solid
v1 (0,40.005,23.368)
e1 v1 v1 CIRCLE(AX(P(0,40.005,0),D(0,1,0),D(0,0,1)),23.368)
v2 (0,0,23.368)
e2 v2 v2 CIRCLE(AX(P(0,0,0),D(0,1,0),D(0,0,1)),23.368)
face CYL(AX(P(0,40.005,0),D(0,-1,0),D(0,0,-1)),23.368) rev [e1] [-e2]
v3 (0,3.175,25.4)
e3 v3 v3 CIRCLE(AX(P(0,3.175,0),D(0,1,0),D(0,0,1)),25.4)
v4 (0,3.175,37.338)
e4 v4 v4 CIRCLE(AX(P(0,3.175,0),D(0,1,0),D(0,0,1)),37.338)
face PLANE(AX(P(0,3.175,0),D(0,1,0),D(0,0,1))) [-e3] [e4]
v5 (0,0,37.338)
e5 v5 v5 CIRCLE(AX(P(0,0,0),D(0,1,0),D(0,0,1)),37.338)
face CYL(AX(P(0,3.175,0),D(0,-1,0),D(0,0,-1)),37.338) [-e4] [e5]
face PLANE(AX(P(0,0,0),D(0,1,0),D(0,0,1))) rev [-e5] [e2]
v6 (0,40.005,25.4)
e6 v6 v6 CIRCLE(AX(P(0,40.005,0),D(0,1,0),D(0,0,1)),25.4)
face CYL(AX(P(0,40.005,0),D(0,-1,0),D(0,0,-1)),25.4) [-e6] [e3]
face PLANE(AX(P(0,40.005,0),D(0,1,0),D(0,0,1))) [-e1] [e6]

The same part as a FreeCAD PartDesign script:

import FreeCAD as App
import Part
import Sketcher
from FreeCAD import Vector
Q = App.Units.Quantity

doc = App.newDocument("Part")
body = doc.addObject("PartDesign::Body", "Body")

sketch1 = body.newObject("Sketcher::SketchObject", "Sketch")
sketch1.AttachmentSupport = (doc.getObject("XZ_Plane"), [""])
sketch1.MapMode = "FlatFace"
sketch1.addGeometry(Part.Circle(Vector(0, 0, 0), Vector(0, 0, 1), 25.4), False)
sketch1.addGeometry(Part.Circle(Vector(0, 0, 0), Vector(0, 0, 1), 23.368), False)
sketch1.addConstraint(Sketcher.Constraint("Coincident", 0, 3, -1, 1))
sketch1.addConstraint(Sketcher.Constraint("Coincident", 1, 3, -1, 1))
sketch1.addConstraint(Sketcher.Constraint("Diameter", 0, Q("2 in")))
sketch1.addConstraint(Sketcher.Constraint("Diameter", 1, Q("1.84 in")))
pad1 = body.newObject("PartDesign::Pad", "Pad")
pad1.Profile = sketch1
pad1.Length = Q("1.575 in")
pad1.Reversed = True

sketch2 = body.newObject("Sketcher::SketchObject", "Sketch001")
sketch2.AttachmentSupport = (doc.getObject("XZ_Plane"), [""])
sketch2.MapMode = "FlatFace"
sketch2.addGeometry(Part.Circle(Vector(0, 0, 0), Vector(0, 0, 1), 37.338), False)
sketch2.addGeometry(Part.Circle(Vector(0, 0, 0), Vector(0, 0, 1), 25.4), False)
sketch2.addConstraint(Sketcher.Constraint("Coincident", 0, 3, -1, 1))
sketch2.addConstraint(Sketcher.Constraint("Coincident", 1, 3, -1, 1))
sketch2.addConstraint(Sketcher.Constraint("Diameter", 1, Q("2 in")))
sketch2.addConstraint(Sketcher.Constraint("Diameter", 0, Q("2.94 in")))
pad2 = body.newObject("PartDesign::Pad", "Pad001")
pad2.Profile = sketch2
pad2.Length = Q("0.125 in")
pad2.Reversed = True

doc.recompute()
